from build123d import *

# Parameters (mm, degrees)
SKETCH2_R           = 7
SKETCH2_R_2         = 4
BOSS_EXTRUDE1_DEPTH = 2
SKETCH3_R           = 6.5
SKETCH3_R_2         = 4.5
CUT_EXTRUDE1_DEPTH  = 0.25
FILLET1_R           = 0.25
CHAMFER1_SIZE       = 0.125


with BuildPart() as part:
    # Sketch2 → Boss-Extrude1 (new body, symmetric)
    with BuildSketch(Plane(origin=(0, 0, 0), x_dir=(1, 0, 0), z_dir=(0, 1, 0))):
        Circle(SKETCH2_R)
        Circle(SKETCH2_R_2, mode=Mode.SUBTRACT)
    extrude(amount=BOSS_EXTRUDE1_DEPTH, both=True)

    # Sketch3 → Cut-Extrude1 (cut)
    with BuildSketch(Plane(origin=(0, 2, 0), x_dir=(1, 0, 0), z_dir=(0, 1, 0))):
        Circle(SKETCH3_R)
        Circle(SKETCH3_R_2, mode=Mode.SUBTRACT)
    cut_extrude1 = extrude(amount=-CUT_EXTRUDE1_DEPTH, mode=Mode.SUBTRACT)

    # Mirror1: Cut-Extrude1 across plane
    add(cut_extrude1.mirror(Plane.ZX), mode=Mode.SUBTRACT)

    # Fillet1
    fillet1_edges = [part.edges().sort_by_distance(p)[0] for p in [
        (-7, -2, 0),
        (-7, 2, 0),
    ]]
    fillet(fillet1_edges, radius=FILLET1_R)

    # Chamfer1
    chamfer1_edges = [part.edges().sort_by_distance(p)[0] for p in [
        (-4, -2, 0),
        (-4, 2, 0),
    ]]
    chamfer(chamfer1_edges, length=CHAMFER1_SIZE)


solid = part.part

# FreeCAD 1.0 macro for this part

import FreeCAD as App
import Part
import Sketcher
from FreeCAD import Vector


def edges_at(feature, points):
    """Names of the edges that pass closest to the given points."""
    edges = feature.Shape.Edges
    near = lambda p: min(range(len(edges)), key=lambda i: edges[i].distToShape(Part.Vertex(*p))[0])
    return sorted({f"Edge{near(p) + 1}" for p in points})

doc = App.newDocument("Part")
body = doc.addObject("PartDesign::Body", "Body")

# Sketch on XZ plane
sketch1 = body.newObject("Sketcher::SketchObject", "Sketch")
sketch1.AttachmentSupport = (doc.getObject("XZ_Plane"), [""])
sketch1.MapMode = "FlatFace"
sketch1.addGeometry([
    Part.Circle(Vector(0, 0, 0), Vector(0, 0, 1), 7),
    Part.Circle(Vector(0, 0, 0), Vector(0, 0, 1), 4),
], False)
sketch1.addConstraint([
    Sketcher.Constraint("Coincident", 0, 3, -1, 1),
    Sketcher.Constraint("Coincident", 1, 3, -1, 1),
    Sketcher.Constraint("Diameter", 0, 14.0),
    Sketcher.Constraint("Diameter", 1, 8.0),
])
pad1 = body.newObject("PartDesign::Pad", "Pad")
pad1.Profile = sketch1
pad1.Length = 4
pad1.Midplane = True

# Sketch on XZ plane
sketch2 = body.newObject("Sketcher::SketchObject", "Sketch001")
sketch2.AttachmentSupport = (doc.getObject("XZ_Plane"), [""])
sketch2.MapMode = "FlatFace"
sketch2.AttachmentOffset = App.Placement(Vector(0, 0, -2), App.Rotation())
sketch2.addGeometry([
    Part.Circle(Vector(0, 0, 0), Vector(0, 0, 1), 6.5),
    Part.Circle(Vector(0, 0, 0), Vector(0, 0, 1), 4.5),
], False)
sketch2.addConstraint([
    Sketcher.Constraint("Coincident", 0, 3, -1, 1),
    Sketcher.Constraint("Coincident", 1, 3, -1, 1),
    Sketcher.Constraint("Diameter", 0, 13.0),
    Sketcher.Constraint("Diameter", 1, 9.0),
])
pocket1 = body.newObject("PartDesign::Pocket", "Pocket")
pocket1.Profile = sketch2
pocket1.Length = 0.25
pocket1.Reversed = True
doc.recompute()

mirrored = body.newObject("PartDesign::Mirrored", "Mirrored")
mirrored.Originals = [pocket1]
mirrored.MirrorPlane = (doc.getObject("XZ_Plane"), [""])
body.Tip = mirrored
doc.recompute()

fillet = body.newObject("PartDesign::Fillet", "Fillet")
fillet.Base = (mirrored, edges_at(mirrored, [(-7, -2, 0), (-7, 2, 0)]))
fillet.Radius = 0.25
doc.recompute()

chamfer = body.newObject("PartDesign::Chamfer", "Chamfer")
chamfer.Base = (fillet, edges_at(fillet, [(-4, -2, 0), (-4, 2, 0)]))
chamfer.Size = 0.125

doc.recompute()
